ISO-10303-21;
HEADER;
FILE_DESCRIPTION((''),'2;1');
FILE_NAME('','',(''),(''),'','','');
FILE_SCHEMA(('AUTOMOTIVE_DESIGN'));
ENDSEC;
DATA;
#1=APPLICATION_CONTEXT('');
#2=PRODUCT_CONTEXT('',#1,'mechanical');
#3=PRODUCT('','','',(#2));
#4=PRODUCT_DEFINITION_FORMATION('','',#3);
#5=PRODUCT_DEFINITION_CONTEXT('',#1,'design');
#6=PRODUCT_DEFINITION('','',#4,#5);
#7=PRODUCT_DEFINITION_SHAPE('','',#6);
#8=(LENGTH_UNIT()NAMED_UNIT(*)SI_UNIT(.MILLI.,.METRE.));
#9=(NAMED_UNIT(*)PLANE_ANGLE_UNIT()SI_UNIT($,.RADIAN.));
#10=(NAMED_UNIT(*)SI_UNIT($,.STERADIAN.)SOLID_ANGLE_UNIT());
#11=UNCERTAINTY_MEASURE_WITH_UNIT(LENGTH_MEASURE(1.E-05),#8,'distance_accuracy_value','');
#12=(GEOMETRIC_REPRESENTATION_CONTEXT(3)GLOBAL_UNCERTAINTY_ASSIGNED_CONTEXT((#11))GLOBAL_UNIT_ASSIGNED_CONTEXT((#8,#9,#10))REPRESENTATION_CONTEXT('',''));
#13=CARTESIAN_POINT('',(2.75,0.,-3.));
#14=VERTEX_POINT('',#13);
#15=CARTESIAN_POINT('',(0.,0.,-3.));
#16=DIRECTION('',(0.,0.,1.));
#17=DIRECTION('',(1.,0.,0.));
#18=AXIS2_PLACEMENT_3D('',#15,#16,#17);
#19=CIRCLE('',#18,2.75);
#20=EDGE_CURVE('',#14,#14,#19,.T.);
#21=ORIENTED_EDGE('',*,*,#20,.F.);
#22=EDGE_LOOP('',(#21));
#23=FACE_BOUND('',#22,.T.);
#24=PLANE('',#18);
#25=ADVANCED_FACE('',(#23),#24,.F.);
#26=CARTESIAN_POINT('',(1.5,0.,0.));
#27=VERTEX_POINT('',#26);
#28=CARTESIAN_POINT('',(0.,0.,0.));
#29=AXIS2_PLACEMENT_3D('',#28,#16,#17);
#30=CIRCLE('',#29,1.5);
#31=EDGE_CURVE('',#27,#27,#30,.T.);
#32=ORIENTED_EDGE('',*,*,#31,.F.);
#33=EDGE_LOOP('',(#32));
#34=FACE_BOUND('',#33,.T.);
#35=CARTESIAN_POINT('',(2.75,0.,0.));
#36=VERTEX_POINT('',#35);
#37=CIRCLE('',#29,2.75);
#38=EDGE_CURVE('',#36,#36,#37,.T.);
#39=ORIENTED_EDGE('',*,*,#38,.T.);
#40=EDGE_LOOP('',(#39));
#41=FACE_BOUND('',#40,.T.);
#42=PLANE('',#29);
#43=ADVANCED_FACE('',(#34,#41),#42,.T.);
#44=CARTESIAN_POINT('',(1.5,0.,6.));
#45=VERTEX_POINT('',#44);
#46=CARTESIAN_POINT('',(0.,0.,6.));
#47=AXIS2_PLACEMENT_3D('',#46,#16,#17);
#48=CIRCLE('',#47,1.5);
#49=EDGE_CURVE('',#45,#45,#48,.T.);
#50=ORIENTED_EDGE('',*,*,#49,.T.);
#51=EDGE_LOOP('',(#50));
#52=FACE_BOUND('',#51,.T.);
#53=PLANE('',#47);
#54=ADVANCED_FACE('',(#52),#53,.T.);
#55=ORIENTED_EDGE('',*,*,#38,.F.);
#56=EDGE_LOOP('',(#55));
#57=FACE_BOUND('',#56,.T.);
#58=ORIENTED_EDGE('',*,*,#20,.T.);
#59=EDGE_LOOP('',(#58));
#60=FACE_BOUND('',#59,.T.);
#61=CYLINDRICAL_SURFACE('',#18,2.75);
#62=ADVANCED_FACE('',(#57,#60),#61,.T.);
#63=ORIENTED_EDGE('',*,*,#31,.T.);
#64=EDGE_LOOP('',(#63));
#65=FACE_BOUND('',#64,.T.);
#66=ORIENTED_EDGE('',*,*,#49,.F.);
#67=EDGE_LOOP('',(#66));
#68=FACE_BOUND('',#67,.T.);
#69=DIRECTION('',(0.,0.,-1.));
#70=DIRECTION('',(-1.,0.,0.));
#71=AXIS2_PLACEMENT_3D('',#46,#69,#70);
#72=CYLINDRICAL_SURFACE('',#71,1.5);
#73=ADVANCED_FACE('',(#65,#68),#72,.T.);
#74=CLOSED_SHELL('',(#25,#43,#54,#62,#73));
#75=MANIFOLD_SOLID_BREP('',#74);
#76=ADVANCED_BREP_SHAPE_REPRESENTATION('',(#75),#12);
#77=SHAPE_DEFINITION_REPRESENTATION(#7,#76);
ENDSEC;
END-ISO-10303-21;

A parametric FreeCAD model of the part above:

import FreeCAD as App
import Part
import Sketcher

V = App.Vector

doc = App.newDocument("Part")
body = doc.addObject("PartDesign::Body", "Body")

# Sketch on XY plane
sketch1 = body.newObject("Sketcher::SketchObject", "Sketch")
sketch1.AttachmentSupport = (doc.getObject("XY_Plane"), [""])
sketch1.MapMode = "FlatFace"
sketch1.addGeometry(Part.Circle(V(0, 0, 0), V(0, 0, 1), 2.8), False)
sketch1.addConstraint([
    Sketcher.Constraint("Coincident", 0, 3, -1, 1),
    Sketcher.Constraint("Diameter", 0, 5.5),
])
pad1 = body.newObject("PartDesign::Pad", "Pad")
pad1.Profile = sketch1
pad1.Length = 3
pad1.Reversed = True

# Sketch on XY plane
sketch2 = body.newObject("Sketcher::SketchObject", "Sketch001")
sketch2.AttachmentSupport = (doc.getObject("XY_Plane"), [""])
sketch2.MapMode = "FlatFace"
sketch2.addGeometry(Part.Circle(V(0, 0, 0), V(0, 0, 1), 1.5), False)
sketch2.addConstraint([
    Sketcher.Constraint("Coincident", 0, 3, -1, 1),
    Sketcher.Constraint("Diameter", 0, 3.0),
])
pad2 = body.newObject("PartDesign::Pad", "Pad001")
pad2.Profile = sketch2
pad2.Length = 6

doc.recompute()
